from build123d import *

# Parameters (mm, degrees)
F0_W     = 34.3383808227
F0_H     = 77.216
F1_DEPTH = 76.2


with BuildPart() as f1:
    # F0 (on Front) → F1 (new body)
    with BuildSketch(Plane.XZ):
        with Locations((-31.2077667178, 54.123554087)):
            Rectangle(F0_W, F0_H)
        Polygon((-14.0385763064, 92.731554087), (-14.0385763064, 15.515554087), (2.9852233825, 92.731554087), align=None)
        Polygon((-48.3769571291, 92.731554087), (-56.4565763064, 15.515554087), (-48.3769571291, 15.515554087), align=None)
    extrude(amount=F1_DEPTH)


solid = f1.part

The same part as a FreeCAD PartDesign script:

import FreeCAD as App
import Part
import Sketcher
Q = App.Units.Quantity


def add_polygon(sketch, points):
    """Adds a closed chain of lines whose ends are joined by coincident constraints."""
    first, n = sketch.GeometryCount, len(points)
    for a, b in zip(points, points[1:] + points[:1]):
        sketch.addGeometry(Part.LineSegment(App.Vector(*a, 0), App.Vector(*b, 0)), False)
    for i in range(n):
        sketch.addConstraint(Sketcher.Constraint("Coincident", first + i, 2, first + (i + 1) % n, 1))

doc = App.newDocument("Part")
body = doc.addObject("PartDesign::Body", "Body")

# Sketch on XZ plane
sketch1 = doc.addObject("Sketcher::SketchObject", "Sketch")
body.addObject(sketch1)
sketch1.AttachmentSupport = (doc.XZ_Plane, [""])
sketch1.MapMode = "FlatFace"
add_polygon(sketch1, [(-14, 16), (3, 93), (-48, 93), (-56, 16)])  # lines 0-3
sketch1.addConstraint(Sketcher.Constraint("Horizontal", 1))
sketch1.addConstraint(Sketcher.Constraint("Horizontal", 3))
sketch1.addConstraint(Sketcher.Constraint("DistanceX", 3, 1, 3, 2, Q("1.67 in")))
sketch1.addConstraint(Sketcher.Constraint("DistanceY", 2, 2, 1, 2, Q("3.04 in")))
sketch1.addConstraint(Sketcher.Constraint("DistanceX", 2, 2, -1, 1, Q("2.2226999 in")))
sketch1.addConstraint(Sketcher.Constraint("DistanceX", 1, 2, 1, 1, Q("51.362181 mm")))
sketch1.addConstraint(Sketcher.Constraint("DistanceX", 2, 2, 0, 2, Q("59.4418 mm")))
sketch1.addConstraint(Sketcher.Constraint("DistanceY", -1, 1, 0, 2, Q("92.731554 mm")))
pad1 = doc.addObject("PartDesign::Pad", "Pad")
body.addObject(pad1)
pad1.Profile = sketch1
pad1.Length = Q("3 in")

doc.recompute()
